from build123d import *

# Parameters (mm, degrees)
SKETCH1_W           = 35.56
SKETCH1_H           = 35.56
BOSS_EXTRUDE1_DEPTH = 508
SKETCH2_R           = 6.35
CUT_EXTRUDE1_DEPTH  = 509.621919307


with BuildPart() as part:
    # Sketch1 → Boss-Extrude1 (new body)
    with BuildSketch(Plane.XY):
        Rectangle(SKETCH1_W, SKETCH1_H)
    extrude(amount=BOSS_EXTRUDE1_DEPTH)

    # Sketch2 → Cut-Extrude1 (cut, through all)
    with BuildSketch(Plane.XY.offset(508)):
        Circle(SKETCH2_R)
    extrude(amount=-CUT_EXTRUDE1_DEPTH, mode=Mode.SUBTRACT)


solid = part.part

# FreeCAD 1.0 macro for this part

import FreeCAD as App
import Part
import Sketcher

V = App.Vector
Q = App.Units.Quantity


def add_polygon(sketch, points):
    """Adds a closed chain of lines whose ends are joined by coincident constraints."""
    first, n = sketch.GeometryCount, len(points)
    for a, b in zip(points, points[1:] + points[:1]):
        sketch.addGeometry(Part.LineSegment(App.Vector(*a, 0), App.Vector(*b, 0)), False)
    for i in range(n):
        sketch.addConstraint(Sketcher.Constraint("Coincident", first + i, 2, first + (i + 1) % n, 1))

doc = App.newDocument("Part")
body = doc.addObject("PartDesign::Body", "Body")

sketch1 = body.newObject("Sketcher::SketchObject", "Sketch")
sketch1.AttachmentSupport = (doc.getObject("XY_Plane"), [""])
sketch1.MapMode = "FlatFace"
add_polygon(sketch1, [(-18, 18), (-18, -18), (18, -18), (18, 18)])
sketch1.addConstraint(Sketcher.Constraint("Vertical", 0))
sketch1.addConstraint(Sketcher.Constraint("Horizontal", 1))
sketch1.addConstraint(Sketcher.Constraint("Vertical", 2))
sketch1.addConstraint(Sketcher.Constraint("Horizontal", 3))
sketch1.addConstraint(Sketcher.Constraint("Symmetric", 0, 2, 2, 2, -1, 1))
sketch1.addConstraint(Sketcher.Constraint("Equal", 3, 0))
sketch1.addConstraint(Sketcher.Constraint("DistanceX", 1, 1, 1, 2, Q("1.4 in")))
pad1 = body.newObject("PartDesign::Pad", "Pad")
pad1.Profile = sketch1
pad1.Length = Q("20 in")

sketch2 = body.newObject("Sketcher::SketchObject", "Sketch001")
sketch2.AttachmentSupport = (doc.getObject("XY_Plane"), [""])
sketch2.MapMode = "FlatFace"
sketch2.AttachmentOffset = App.Placement(V(0, 0, 20 * 25.4), App.Rotation())
sketch2.addGeometry(Part.Circle(V(0, 0, 0), V(0, 0, 1), 6), False)
sketch2.addConstraint(Sketcher.Constraint("Coincident", 0, 3, -1, 1))
sketch2.addConstraint(Sketcher.Constraint("Diameter", 0, Q("0.5 in")))
pocket1 = body.newObject("PartDesign::Pocket", "Pocket")
pocket1.Profile = sketch2
pocket1.Type = "ThroughAll"

doc.recompute()
